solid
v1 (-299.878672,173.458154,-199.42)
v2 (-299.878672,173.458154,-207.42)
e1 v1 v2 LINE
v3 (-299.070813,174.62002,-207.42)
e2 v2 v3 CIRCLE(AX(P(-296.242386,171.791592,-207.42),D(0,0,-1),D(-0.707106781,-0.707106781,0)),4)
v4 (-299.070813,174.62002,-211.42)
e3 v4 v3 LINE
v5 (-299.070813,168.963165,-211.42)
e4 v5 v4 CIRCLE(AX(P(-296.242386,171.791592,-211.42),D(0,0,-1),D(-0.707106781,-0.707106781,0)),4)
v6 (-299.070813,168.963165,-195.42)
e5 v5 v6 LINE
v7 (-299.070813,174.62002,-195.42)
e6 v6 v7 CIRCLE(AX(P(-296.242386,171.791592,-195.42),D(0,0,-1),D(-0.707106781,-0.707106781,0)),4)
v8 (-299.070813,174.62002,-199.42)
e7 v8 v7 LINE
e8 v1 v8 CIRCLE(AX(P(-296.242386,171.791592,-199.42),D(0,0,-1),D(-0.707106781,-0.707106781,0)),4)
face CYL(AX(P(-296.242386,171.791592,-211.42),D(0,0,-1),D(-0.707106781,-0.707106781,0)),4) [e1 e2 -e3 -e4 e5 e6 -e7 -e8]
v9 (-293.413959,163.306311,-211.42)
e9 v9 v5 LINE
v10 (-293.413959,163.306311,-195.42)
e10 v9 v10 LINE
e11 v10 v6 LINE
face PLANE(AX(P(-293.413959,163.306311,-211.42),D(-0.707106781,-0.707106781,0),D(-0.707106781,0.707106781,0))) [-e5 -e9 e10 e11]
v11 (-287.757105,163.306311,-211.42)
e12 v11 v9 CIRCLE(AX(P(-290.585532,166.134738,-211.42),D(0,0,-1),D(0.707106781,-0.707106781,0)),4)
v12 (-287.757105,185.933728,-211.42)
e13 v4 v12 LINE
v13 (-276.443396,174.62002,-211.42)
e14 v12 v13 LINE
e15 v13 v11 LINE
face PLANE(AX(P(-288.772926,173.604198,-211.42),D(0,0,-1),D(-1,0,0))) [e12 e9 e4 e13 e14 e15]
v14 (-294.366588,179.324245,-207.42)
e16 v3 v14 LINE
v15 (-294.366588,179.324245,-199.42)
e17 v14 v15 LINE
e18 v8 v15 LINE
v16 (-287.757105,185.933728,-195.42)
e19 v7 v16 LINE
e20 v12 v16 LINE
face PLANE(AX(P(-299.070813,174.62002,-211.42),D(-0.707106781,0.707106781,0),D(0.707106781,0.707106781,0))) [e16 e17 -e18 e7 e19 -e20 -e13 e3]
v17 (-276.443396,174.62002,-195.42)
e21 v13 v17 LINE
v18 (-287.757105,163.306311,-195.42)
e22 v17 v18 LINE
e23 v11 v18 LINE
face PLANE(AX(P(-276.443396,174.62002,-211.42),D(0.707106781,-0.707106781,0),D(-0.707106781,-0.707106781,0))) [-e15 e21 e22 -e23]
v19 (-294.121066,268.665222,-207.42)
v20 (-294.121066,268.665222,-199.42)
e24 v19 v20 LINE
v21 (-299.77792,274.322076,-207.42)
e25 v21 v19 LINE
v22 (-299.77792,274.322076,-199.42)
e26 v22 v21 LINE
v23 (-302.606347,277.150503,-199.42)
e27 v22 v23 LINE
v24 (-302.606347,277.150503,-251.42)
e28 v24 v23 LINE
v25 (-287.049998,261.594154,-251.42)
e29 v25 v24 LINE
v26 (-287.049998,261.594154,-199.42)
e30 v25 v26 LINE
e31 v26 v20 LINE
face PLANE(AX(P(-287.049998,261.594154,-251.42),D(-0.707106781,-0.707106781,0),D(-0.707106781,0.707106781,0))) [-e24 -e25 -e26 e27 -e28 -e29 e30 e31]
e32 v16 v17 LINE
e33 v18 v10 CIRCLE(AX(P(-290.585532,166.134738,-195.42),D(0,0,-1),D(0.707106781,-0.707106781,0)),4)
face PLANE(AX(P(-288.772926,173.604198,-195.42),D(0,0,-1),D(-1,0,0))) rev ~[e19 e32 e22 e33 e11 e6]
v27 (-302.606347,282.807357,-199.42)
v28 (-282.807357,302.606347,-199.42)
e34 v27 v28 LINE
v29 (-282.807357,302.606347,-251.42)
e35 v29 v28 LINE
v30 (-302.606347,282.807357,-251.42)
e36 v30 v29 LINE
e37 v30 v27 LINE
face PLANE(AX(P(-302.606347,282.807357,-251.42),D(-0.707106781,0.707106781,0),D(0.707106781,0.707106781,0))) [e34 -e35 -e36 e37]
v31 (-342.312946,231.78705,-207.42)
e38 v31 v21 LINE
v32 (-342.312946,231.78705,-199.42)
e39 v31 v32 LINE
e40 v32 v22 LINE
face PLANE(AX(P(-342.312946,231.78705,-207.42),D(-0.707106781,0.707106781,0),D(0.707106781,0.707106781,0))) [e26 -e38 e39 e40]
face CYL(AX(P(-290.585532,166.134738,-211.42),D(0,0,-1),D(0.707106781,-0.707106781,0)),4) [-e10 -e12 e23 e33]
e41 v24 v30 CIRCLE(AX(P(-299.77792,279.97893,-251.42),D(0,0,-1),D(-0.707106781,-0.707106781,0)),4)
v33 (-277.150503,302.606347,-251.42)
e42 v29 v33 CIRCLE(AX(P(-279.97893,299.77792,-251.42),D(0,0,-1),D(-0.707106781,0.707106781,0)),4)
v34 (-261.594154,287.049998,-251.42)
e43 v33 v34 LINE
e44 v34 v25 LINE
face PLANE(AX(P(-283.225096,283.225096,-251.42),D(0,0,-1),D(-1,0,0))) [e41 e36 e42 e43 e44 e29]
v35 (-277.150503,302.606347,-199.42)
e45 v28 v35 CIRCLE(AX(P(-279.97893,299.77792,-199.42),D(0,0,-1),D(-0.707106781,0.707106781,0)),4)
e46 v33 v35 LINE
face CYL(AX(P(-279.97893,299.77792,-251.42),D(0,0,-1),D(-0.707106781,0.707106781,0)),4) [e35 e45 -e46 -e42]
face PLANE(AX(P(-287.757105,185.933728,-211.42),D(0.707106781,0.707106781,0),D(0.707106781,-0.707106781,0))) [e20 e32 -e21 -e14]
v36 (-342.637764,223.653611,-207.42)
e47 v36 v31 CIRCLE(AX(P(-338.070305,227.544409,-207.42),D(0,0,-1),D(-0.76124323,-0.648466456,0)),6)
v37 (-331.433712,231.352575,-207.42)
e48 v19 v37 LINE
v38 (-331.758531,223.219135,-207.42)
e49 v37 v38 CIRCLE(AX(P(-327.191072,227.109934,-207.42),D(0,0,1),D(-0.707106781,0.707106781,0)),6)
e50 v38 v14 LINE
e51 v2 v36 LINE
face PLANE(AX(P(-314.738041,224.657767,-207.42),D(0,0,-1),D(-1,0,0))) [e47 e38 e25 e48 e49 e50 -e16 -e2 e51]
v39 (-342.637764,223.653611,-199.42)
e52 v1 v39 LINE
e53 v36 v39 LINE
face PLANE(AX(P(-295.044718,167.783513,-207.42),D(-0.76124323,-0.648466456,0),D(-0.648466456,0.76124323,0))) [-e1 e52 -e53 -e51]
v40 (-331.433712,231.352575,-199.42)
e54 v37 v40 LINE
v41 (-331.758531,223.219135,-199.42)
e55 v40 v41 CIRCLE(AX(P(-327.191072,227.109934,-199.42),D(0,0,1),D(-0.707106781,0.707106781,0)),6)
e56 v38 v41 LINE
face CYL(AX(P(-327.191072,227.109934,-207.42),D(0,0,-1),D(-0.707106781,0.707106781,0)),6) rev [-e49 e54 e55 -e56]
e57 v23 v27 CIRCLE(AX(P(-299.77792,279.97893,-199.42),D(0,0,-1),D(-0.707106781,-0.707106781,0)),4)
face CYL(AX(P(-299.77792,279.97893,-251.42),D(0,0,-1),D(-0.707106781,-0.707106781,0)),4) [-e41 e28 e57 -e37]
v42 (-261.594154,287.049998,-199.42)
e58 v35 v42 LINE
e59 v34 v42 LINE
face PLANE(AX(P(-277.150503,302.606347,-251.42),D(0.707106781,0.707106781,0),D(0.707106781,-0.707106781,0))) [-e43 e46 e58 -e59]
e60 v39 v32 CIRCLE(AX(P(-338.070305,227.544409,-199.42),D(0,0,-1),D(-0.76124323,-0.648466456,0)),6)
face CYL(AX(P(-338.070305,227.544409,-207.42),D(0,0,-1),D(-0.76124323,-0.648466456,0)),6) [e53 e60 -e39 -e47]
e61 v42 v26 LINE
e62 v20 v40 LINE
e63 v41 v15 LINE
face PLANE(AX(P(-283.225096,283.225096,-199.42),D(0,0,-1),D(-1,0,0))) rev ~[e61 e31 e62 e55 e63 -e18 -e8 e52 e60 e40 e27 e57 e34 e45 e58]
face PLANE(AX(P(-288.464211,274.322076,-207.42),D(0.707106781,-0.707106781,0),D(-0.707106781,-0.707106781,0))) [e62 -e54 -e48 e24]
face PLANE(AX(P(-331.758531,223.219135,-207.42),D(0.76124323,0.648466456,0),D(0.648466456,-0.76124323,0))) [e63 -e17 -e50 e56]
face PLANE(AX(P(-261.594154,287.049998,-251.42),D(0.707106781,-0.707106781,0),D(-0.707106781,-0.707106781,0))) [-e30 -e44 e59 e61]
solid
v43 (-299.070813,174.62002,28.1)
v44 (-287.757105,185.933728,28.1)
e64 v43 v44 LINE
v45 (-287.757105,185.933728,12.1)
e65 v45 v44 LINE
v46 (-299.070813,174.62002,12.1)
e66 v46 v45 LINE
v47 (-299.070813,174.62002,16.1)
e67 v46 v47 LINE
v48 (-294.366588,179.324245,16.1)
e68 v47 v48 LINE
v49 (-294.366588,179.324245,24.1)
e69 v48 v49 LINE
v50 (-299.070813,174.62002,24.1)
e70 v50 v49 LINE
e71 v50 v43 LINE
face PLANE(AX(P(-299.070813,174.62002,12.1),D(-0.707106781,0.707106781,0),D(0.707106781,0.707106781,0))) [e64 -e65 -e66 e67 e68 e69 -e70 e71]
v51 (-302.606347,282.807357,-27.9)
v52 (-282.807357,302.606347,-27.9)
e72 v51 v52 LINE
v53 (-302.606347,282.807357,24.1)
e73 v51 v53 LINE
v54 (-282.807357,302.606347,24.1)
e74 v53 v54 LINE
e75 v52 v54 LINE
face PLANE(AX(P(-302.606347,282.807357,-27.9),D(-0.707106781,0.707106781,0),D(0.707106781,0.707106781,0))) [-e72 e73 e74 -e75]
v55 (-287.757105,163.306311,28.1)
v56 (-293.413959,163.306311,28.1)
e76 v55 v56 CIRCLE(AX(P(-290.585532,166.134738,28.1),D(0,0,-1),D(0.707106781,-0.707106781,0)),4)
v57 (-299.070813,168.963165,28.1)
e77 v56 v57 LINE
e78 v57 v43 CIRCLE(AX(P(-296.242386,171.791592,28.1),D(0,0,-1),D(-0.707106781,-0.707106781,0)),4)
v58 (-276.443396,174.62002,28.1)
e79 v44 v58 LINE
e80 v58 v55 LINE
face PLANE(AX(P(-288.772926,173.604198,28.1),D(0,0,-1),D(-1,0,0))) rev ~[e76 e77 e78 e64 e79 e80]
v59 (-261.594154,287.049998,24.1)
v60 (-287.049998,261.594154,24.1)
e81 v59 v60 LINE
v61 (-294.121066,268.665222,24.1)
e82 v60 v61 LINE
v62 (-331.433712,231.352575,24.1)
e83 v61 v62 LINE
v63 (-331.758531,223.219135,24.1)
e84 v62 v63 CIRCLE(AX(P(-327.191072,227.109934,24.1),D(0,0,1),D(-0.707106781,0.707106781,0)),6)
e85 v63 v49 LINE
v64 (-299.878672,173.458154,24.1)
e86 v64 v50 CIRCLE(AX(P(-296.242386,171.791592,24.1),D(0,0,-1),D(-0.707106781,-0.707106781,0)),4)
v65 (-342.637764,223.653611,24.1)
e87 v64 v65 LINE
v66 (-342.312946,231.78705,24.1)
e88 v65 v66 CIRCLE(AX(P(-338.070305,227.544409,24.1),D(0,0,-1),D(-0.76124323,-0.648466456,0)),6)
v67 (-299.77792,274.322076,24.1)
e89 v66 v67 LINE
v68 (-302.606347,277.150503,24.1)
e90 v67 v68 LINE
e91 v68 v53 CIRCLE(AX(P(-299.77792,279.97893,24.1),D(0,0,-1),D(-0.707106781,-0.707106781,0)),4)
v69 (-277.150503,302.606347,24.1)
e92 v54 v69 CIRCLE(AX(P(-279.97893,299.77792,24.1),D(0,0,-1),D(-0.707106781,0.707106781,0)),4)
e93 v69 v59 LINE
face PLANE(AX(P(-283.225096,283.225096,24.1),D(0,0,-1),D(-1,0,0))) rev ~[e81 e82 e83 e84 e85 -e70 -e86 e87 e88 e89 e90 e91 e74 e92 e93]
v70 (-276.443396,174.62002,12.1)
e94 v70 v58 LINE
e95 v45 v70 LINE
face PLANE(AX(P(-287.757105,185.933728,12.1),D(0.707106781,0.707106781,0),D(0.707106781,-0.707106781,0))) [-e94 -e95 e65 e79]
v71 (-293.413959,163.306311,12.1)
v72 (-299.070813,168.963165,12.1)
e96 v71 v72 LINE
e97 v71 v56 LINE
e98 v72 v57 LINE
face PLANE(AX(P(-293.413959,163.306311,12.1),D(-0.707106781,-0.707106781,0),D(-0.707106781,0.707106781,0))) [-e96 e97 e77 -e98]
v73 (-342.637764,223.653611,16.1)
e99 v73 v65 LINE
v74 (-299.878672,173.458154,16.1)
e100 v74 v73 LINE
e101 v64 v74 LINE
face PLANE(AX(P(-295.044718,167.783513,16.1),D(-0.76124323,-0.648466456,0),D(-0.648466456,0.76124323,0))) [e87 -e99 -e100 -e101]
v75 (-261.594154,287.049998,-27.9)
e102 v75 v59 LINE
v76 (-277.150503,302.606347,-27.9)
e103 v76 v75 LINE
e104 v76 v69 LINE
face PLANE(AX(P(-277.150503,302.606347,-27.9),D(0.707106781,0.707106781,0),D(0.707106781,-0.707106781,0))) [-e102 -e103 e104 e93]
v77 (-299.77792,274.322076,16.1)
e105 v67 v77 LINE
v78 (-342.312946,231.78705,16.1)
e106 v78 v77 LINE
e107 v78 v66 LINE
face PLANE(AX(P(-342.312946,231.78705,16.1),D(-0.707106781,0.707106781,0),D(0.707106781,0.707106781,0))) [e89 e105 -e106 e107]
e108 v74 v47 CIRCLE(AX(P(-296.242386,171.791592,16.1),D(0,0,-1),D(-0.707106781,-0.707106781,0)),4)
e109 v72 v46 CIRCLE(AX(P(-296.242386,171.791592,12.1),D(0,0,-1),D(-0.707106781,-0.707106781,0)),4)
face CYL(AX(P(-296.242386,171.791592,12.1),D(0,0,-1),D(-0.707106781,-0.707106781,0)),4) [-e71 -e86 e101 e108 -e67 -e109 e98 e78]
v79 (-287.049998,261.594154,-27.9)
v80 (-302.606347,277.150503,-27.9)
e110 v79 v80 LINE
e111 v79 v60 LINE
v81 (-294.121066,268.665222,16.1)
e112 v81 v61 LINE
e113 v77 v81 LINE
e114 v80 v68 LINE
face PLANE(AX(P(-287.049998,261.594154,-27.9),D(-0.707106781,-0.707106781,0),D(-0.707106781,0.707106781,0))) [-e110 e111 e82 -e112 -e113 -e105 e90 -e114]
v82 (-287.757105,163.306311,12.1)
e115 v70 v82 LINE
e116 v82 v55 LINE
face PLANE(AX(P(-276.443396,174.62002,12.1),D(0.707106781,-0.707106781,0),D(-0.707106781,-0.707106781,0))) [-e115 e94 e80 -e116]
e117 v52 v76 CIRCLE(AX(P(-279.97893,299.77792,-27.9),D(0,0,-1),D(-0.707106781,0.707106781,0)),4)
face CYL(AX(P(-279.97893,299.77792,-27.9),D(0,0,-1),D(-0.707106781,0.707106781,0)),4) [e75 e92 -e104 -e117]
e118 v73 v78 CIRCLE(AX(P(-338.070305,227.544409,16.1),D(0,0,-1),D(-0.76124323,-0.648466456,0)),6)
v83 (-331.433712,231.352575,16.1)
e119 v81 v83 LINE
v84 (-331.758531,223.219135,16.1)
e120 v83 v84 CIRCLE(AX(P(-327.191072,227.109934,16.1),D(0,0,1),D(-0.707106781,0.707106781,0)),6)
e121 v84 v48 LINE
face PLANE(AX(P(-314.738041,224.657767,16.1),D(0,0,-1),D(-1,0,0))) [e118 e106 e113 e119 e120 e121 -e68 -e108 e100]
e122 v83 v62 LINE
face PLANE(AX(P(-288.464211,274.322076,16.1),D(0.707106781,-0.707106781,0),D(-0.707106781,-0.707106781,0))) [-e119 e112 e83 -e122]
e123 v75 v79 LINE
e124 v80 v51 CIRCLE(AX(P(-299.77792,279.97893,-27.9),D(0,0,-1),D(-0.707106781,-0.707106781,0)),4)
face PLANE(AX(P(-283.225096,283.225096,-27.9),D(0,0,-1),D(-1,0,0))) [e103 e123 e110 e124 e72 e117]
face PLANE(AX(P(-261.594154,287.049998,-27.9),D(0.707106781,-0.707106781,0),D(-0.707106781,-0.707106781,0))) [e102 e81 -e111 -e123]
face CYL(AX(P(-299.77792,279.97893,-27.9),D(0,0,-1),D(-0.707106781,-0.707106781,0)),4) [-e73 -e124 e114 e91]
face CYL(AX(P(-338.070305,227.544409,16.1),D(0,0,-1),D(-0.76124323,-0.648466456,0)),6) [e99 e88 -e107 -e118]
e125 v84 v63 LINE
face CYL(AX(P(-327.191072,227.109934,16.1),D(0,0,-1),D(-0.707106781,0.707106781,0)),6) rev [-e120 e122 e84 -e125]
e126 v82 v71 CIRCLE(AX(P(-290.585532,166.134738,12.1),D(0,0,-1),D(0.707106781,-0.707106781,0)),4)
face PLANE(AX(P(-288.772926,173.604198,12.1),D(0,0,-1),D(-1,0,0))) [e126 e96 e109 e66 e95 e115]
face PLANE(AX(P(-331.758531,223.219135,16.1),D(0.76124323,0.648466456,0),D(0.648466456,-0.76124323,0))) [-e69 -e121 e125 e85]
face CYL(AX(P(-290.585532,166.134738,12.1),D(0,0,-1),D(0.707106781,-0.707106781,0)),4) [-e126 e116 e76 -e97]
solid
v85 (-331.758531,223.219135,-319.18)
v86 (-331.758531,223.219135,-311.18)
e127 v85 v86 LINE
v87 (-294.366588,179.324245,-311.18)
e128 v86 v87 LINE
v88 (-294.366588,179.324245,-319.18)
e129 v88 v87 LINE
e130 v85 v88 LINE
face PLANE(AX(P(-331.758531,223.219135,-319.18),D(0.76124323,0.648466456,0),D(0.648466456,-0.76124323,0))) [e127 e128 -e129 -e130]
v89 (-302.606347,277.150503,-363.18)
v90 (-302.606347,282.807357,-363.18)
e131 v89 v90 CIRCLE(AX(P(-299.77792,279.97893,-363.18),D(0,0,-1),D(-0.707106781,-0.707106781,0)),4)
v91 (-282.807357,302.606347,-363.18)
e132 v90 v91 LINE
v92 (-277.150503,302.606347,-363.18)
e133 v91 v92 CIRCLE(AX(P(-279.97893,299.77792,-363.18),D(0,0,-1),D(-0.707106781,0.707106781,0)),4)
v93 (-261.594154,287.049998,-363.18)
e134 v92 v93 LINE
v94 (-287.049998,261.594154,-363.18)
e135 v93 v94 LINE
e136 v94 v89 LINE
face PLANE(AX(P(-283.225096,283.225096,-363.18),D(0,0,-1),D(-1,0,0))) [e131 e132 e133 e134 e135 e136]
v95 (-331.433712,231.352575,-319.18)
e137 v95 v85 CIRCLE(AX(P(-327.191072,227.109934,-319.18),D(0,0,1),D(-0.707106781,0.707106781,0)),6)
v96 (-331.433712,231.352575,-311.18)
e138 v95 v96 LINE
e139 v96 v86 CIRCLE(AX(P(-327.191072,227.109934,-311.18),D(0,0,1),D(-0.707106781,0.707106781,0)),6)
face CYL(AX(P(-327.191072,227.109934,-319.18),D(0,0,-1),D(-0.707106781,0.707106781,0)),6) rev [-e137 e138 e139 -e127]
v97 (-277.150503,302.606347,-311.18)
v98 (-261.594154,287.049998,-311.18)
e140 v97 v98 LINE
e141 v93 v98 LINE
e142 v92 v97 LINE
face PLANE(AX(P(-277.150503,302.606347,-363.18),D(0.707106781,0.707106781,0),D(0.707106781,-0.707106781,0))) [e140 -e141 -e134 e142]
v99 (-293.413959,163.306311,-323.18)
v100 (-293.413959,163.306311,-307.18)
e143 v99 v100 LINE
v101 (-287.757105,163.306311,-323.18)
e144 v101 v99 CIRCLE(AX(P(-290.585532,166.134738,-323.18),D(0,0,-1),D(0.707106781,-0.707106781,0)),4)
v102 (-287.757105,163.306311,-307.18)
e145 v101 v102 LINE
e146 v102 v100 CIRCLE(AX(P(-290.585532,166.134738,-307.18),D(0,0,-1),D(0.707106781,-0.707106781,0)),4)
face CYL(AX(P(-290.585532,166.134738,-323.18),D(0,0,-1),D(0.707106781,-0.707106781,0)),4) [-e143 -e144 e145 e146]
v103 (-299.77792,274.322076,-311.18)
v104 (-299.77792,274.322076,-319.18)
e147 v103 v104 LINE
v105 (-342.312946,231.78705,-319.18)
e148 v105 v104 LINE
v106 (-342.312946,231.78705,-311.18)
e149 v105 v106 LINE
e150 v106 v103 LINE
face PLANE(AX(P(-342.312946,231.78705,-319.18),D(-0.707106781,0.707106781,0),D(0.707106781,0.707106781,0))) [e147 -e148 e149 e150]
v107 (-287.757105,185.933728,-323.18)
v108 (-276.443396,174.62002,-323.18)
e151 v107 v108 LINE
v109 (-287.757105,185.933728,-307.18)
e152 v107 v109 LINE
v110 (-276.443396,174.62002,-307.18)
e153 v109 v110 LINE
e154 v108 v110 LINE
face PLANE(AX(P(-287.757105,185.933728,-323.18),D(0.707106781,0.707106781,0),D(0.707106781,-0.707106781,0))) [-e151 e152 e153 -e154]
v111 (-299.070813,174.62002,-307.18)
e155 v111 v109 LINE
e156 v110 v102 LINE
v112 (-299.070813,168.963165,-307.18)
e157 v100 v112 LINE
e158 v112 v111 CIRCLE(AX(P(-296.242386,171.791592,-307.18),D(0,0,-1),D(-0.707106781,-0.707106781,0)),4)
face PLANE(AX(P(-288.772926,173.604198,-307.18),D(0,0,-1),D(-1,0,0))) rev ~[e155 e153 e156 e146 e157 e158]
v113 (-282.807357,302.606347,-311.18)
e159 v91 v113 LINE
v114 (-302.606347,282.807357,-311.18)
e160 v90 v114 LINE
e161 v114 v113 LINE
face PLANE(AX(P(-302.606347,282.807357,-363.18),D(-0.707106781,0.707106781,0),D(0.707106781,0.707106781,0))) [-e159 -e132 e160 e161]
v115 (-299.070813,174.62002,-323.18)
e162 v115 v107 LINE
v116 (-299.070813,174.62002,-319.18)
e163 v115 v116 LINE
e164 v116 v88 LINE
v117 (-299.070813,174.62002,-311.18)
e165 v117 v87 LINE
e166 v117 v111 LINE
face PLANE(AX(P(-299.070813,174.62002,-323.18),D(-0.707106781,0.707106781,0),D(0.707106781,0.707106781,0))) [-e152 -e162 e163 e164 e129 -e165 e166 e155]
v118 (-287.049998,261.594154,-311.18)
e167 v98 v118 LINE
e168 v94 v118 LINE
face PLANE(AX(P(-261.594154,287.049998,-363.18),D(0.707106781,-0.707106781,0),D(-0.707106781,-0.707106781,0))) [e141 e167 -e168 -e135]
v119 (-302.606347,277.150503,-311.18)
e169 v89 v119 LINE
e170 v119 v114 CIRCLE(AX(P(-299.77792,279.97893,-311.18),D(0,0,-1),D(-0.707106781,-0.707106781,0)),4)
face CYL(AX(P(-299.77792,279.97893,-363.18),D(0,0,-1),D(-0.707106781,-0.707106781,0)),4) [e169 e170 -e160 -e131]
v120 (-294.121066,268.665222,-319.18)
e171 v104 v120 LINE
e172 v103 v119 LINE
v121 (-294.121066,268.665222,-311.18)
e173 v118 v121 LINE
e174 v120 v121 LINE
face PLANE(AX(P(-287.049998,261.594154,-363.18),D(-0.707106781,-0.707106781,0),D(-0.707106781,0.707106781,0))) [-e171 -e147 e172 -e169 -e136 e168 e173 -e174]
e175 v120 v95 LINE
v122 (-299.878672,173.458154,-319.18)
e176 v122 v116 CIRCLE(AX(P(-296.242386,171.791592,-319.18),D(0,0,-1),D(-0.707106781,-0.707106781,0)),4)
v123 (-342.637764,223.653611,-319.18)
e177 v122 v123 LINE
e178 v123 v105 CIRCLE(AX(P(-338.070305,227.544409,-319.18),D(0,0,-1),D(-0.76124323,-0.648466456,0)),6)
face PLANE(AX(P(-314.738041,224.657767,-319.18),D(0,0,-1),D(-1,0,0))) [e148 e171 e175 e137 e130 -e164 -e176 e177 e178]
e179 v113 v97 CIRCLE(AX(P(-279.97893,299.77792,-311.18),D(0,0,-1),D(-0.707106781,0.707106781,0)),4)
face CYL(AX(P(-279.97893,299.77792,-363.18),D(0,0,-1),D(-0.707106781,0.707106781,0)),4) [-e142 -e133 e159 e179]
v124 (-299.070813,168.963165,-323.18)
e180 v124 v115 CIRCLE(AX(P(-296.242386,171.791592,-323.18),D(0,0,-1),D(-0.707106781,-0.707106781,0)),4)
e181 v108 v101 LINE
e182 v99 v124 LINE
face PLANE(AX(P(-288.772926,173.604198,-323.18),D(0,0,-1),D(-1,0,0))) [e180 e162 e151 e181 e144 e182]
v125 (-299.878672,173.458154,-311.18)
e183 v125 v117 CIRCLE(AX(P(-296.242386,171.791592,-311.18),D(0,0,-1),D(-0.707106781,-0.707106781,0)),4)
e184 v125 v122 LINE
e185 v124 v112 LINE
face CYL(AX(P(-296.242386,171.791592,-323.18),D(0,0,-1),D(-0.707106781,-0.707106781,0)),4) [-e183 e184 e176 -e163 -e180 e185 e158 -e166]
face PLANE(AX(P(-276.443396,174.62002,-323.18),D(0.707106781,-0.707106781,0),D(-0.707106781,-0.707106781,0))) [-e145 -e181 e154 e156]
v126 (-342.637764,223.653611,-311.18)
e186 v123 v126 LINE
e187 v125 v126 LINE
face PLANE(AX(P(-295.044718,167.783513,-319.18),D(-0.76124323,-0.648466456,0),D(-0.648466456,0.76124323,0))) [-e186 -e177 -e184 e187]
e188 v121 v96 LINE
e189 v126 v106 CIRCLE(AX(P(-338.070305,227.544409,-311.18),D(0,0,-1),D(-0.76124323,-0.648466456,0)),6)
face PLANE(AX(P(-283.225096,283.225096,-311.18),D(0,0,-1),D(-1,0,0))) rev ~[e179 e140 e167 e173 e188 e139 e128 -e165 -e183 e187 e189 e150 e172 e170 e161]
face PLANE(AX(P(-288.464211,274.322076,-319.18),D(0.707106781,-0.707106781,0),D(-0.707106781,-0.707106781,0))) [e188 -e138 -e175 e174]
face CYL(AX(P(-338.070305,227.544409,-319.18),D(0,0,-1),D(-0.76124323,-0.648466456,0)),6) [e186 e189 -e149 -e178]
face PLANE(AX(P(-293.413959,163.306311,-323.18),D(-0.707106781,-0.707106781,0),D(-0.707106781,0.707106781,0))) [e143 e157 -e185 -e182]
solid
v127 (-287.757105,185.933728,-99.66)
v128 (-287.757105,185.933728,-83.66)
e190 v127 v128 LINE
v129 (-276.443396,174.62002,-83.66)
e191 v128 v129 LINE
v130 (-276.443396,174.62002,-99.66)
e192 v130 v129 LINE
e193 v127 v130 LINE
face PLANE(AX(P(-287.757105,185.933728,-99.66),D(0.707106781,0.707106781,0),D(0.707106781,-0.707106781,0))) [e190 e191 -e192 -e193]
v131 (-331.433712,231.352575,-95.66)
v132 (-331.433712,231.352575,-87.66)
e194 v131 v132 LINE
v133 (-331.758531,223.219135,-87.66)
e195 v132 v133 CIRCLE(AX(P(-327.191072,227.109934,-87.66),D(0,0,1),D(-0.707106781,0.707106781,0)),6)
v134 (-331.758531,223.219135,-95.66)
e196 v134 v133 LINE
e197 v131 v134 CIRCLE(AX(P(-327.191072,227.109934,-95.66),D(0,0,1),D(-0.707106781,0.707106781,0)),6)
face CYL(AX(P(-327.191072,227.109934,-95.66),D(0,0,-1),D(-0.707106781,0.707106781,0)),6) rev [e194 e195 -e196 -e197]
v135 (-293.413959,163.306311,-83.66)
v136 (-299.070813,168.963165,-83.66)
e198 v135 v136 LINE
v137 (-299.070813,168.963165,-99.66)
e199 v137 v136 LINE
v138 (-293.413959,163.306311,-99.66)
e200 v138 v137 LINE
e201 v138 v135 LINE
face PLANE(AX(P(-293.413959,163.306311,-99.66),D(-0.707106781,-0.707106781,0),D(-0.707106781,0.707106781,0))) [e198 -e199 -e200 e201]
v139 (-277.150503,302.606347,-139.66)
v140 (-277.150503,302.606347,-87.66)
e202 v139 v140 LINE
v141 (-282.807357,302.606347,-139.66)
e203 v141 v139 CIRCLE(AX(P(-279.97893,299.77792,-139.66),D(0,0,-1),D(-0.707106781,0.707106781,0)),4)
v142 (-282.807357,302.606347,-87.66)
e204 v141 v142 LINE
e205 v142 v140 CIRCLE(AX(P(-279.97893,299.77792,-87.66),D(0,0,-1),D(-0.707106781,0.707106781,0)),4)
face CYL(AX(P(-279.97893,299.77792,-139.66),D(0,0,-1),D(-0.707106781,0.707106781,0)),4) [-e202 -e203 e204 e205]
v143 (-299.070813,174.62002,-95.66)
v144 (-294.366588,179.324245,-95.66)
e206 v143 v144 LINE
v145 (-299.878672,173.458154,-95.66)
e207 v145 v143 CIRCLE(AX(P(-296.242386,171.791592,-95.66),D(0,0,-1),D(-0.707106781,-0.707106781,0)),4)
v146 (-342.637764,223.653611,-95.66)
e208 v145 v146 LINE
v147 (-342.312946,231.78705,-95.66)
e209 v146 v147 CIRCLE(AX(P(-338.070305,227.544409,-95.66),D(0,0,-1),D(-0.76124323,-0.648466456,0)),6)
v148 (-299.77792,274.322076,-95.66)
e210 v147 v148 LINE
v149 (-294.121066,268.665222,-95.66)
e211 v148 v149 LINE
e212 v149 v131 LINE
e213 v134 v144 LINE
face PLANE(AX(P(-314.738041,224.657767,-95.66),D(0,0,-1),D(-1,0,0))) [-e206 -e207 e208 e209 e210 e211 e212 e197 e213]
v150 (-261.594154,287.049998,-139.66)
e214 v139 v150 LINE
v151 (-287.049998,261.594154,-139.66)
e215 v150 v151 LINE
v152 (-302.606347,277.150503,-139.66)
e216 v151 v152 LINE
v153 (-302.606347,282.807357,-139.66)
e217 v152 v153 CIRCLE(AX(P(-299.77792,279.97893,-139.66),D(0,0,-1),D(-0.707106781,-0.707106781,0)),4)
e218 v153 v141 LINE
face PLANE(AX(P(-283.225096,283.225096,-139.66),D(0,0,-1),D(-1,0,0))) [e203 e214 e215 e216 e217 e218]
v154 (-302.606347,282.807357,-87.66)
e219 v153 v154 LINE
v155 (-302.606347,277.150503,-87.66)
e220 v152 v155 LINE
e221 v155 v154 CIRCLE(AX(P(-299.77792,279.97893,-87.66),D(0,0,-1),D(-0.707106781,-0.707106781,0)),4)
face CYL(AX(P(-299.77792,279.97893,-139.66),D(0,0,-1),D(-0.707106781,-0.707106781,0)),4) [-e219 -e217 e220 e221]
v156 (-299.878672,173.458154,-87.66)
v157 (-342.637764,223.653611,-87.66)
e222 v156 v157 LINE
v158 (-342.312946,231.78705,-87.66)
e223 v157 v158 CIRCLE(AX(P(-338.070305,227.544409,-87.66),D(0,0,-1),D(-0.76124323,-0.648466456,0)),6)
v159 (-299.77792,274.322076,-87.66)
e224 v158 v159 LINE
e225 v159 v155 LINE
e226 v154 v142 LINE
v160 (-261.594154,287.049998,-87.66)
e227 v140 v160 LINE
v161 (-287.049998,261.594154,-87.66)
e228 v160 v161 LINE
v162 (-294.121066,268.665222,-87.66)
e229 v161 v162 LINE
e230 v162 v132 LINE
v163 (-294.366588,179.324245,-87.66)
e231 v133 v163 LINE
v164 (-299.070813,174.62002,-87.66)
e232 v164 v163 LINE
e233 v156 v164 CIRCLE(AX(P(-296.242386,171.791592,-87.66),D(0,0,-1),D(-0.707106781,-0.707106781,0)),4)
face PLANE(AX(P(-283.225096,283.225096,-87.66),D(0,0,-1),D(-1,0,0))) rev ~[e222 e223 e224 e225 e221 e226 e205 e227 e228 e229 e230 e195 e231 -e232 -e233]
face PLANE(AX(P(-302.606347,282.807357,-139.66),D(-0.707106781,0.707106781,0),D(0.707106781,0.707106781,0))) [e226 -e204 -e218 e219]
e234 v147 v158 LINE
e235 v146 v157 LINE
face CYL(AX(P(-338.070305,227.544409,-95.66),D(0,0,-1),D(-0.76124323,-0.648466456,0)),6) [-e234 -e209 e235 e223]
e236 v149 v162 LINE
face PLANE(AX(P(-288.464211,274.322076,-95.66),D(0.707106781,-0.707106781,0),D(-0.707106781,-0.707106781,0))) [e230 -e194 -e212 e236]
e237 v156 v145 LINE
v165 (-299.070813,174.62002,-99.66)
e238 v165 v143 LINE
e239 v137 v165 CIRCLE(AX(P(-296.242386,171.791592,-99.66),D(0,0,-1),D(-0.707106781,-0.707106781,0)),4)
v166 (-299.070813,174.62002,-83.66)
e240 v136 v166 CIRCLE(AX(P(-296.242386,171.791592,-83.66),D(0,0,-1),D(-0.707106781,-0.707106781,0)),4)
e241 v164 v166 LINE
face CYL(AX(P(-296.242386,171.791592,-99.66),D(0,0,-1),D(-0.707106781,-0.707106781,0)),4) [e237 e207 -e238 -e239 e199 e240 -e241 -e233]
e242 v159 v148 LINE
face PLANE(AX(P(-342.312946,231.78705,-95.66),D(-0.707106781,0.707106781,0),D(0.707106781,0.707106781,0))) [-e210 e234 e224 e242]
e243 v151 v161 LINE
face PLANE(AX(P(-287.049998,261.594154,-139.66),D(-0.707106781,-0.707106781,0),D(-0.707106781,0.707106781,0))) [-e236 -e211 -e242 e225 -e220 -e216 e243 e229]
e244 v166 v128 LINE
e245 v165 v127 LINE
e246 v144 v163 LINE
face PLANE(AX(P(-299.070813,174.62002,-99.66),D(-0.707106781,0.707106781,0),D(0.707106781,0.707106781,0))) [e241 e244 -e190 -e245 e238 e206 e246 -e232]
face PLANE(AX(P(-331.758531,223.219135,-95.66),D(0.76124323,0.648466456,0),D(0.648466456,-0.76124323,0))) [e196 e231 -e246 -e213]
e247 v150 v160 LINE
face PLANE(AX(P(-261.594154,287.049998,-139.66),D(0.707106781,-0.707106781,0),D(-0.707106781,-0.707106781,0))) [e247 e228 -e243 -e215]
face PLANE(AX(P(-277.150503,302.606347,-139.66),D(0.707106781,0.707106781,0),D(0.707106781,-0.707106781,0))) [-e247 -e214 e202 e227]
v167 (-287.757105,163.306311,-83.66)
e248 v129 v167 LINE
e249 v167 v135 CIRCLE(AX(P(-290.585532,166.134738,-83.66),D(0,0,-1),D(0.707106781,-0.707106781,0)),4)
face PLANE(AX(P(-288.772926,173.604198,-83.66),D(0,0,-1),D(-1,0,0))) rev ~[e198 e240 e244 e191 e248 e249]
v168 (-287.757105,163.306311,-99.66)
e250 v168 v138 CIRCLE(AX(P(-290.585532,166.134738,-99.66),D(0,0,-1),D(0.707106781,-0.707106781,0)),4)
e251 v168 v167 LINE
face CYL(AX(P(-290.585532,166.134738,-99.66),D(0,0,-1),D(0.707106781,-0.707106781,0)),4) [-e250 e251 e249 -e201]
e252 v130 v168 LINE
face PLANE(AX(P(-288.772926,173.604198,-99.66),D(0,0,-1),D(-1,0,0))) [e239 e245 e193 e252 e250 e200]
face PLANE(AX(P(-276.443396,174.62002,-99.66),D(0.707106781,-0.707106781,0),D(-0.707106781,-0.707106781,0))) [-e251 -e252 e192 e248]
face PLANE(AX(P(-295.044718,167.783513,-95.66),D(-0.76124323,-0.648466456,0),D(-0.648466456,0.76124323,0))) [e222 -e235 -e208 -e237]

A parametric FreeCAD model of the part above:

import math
import FreeCAD as App
import Part
import Sketcher

V = App.Vector
Q = App.Units.Quantity

doc = App.newDocument("Part")
body = doc.addObject("PartDesign::Body", "Body")

# Sketch on XY plane
sketch1 = body.newObject("Sketcher::SketchObject", "Sketch")
sketch1.AttachmentSupport = (doc.getObject("XY_Plane"), [""])
sketch1.MapMode = "FlatFace"
sketch1.AttachmentOffset = App.Placement(V(0, 0, -27.9), App.Rotation())
sketch1.addGeometry([
    Part.LineSegment(V(-287.049998, 261.594154, 0), V(-261.594154, 287.049998, 0)),  # 0
    Part.LineSegment(V(-261.594154, 287.049998, 0), V(-277.150503, 302.606347, 0)),  # 1
    Part.ArcOfCircle(Part.Circle(V(-279.97893, 299.77792, 0), V(0, 0, 1), 4), math.radians(45), math.radians(135)),  # 2
    Part.LineSegment(V(-282.807357, 302.606347, 0), V(-302.606347, 282.807357, 0)),  # 3
    Part.ArcOfCircle(Part.Circle(V(-299.77792, 279.97893, 0), V(0, 0, 1), 4), math.radians(135), math.radians(225)),  # 4
    Part.LineSegment(V(-302.606347, 277.150503, 0), V(-287.049998, 261.594154, 0)),  # 5
], False)
sketch1.addConstraint([
    Sketcher.Constraint("Coincident", 0, 2, 1, 1),
    Sketcher.Constraint("Tangent", 1, 2, 2, 1),
    Sketcher.Constraint("Tangent", 2, 2, 3, 1),
    Sketcher.Constraint("Tangent", 3, 2, 4, 1),
    Sketcher.Constraint("Tangent", 4, 2, 5, 1),
    Sketcher.Constraint("Coincident", 5, 2, 0, 1),
    Sketcher.Constraint("Equal", 2, 4),
    Sketcher.Constraint("Perpendicular", 0, 1),
    Sketcher.Constraint("Perpendicular", 1, 3),
    Sketcher.Constraint("Perpendicular", 3, 5),
    Sketcher.Constraint("Horizontal", 1, 2, 2, 2),
    Sketcher.Constraint("Radius", 2, Q("4 mm")),
    Sketcher.Constraint("Distance", 0, Q("36 mm")),
    Sketcher.Constraint("Distance", 1, Q("22 mm")),
    Sketcher.Constraint("DistanceX", 2, 3, -1, 1, Q("279.97893 mm")),
    Sketcher.Constraint("DistanceY", -1, 1, 2, 3, Q("299.77792 mm")),
])
pad1 = body.newObject("PartDesign::Pad", "Pad")
pad1.Profile = sketch1
pad1.Length = 52

# Sketch on XY plane
sketch2 = body.newObject("Sketcher::SketchObject", "Sketch001")
sketch2.AttachmentSupport = (doc.getObject("XY_Plane"), [""])
sketch2.MapMode = "FlatFace"
sketch2.AttachmentOffset = App.Placement(V(0, 0, 16.1), App.Rotation())
sketch2.addGeometry([
    Part.LineSegment(V(-331.433712, 231.352575, 0), V(-288.464211, 274.322076, 0)),  # 0
    Part.LineSegment(V(-288.464211, 274.322076, 0), V(-294.121066, 279.97893, 0)),  # 1
    Part.LineSegment(V(-294.121066, 279.97893, 0), V(-342.312946, 231.78705, 0)),  # 2
    Part.ArcOfCircle(Part.Circle(V(-338.070305, 227.544409, 0), V(0, 0, 1), 6), math.radians(135), math.radians(220.426079)),  # 3
    Part.LineSegment(V(-342.637764, 223.653611, 0), V(-295.044718, 167.783513, 0)),  # 4
    Part.LineSegment(V(-295.044718, 167.783513, 0), V(-288.954772, 172.971245, 0)),  # 5
    Part.LineSegment(V(-288.954772, 172.971245, 0), V(-331.758531, 223.219135, 0)),  # 6
    Part.ArcOfCircle(Part.Circle(V(-327.191072, 227.109934, 0), V(0, 0, 1), 6), math.radians(135), math.radians(220.426079)),  # 7
], False)
sketch2.addConstraint([
    Sketcher.Constraint("Coincident", 0, 2, 1, 1),
    Sketcher.Constraint("Coincident", 1, 2, 2, 1),
    Sketcher.Constraint("Tangent", 2, 2, 3, 1),
    Sketcher.Constraint("Tangent", 3, 2, 4, 1),
    Sketcher.Constraint("Coincident", 4, 2, 5, 1),
    Sketcher.Constraint("Coincident", 5, 2, 6, 1),
    Sketcher.Constraint("Tangent", 6, 2, 7, 2),
    Sketcher.Constraint("Tangent", 7, 1, 0, 1),
    Sketcher.Constraint("Equal", 3, 7),
    Sketcher.Constraint("Perpendicular", 0, 1),
    Sketcher.Constraint("Perpendicular", 1, 2),
    Sketcher.Constraint("Perpendicular", 4, 5),
    Sketcher.Constraint("Perpendicular", 5, 6),
    Sketcher.Constraint("Equal", 1, 5),
    Sketcher.Constraint("Radius", 3, Q("6 mm")),
    Sketcher.Constraint("Angle", 0, Q("45 deg")),
    Sketcher.Constraint("Distance", 1, Q("8 mm")),
    Sketcher.Constraint("DistanceY", 3, 2, 3, 3, Q("3.890799 mm")),
    Sketcher.Constraint("DistanceX", 3, 2, 1, 2, Q("48.516699 mm")),
    Sketcher.Constraint("DistanceX", 7, 3, 5, 2, Q("38.236299 mm")),
    Sketcher.Constraint("DistanceY", -1, 1, 3, 3, Q("227.544409 mm")),
    Sketcher.Constraint("DistanceX", 7, 3, -1, 1, Q("327.191072 mm")),
])
pad2 = body.newObject("PartDesign::Pad", "Pad001")
pad2.Profile = sketch2
pad2.Length = 8

# Sketch on XY plane
sketch3 = body.newObject("Sketcher::SketchObject", "Sketch002")
sketch3.AttachmentSupport = (doc.getObject("XY_Plane"), [""])
sketch3.MapMode = "FlatFace"
sketch3.AttachmentOffset = App.Placement(V(0, 0, 12.1), App.Rotation())
sketch3.addGeometry([
    Part.LineSegment(V(-287.757105, 163.306311, 0), V(-276.443396, 174.62002, 0)),  # 0
    Part.LineSegment(V(-276.443396, 174.62002, 0), V(-287.757105, 185.933728, 0)),  # 1
    Part.LineSegment(V(-287.757105, 185.933728, 0), V(-299.070813, 174.62002, 0)),  # 2
    Part.ArcOfCircle(Part.Circle(V(-296.242386, 171.791592, 0), V(0, 0, 1), 4), math.radians(135), math.radians(225)),  # 3
    Part.LineSegment(V(-299.070813, 168.963165, 0), V(-293.413959, 163.306311, 0)),  # 4
    Part.ArcOfCircle(Part.Circle(V(-290.585532, 166.134738, 0), V(0, 0, 1), 4), math.radians(-135), math.radians(-45)),  # 5
], False)
sketch3.addConstraint([
    Sketcher.Constraint("Coincident", 0, 2, 1, 1),
    Sketcher.Constraint("Coincident", 1, 2, 2, 1),
    Sketcher.Constraint("Tangent", 2, 2, 3, 1),
    Sketcher.Constraint("Tangent", 3, 2, 4, 1),
    Sketcher.Constraint("Tangent", 4, 2, 5, 1),
    Sketcher.Constraint("Tangent", 5, 2, 0, 1),
    Sketcher.Constraint("Equal", 3, 5),
    Sketcher.Constraint("Perpendicular", 0, 1),
    Sketcher.Constraint("Perpendicular", 1, 2),
    Sketcher.Constraint("Perpendicular", 2, 4),
    Sketcher.Constraint("Horizontal", 0, 2, 2, 2),
    Sketcher.Constraint("Horizontal", 4, 2, 5, 2),
    Sketcher.Constraint("Radius", 3, Q("4 mm")),
    Sketcher.Constraint("Distance", 0, Q("16 mm")),
    Sketcher.Constraint("DistanceX", 5, 3, -1, 1, Q("290.585532 mm")),
    Sketcher.Constraint("DistanceY", -1, 1, 5, 3, Q("166.134738 mm")),
])
pad3 = body.newObject("PartDesign::Pad", "Pad002")
pad3.Profile = sketch3
pad3.Length = 16
body2 = doc.addObject("PartDesign::Body", "Body001")

# Sketch on XY plane
sketch4 = body2.newObject("Sketcher::SketchObject", "Sketch003")
sketch4.AttachmentSupport = (doc.getObject("XY_Plane001"), [""])
sketch4.MapMode = "FlatFace"
sketch4.AttachmentOffset = App.Placement(V(0, 0, -139.66), App.Rotation())
sketch4.addGeometry([
    Part.LineSegment(V(-287.049998, 261.594154, 0), V(-261.594154, 287.049998, 0)),  # 0
    Part.LineSegment(V(-261.594154, 287.049998, 0), V(-277.150503, 302.606347, 0)),  # 1
    Part.ArcOfCircle(Part.Circle(V(-279.97893, 299.77792, 0), V(0, 0, 1), 4), math.radians(45), math.radians(135)),  # 2
    Part.LineSegment(V(-282.807357, 302.606347, 0), V(-302.606347, 282.807357, 0)),  # 3
    Part.ArcOfCircle(Part.Circle(V(-299.77792, 279.97893, 0), V(0, 0, 1), 4), math.radians(135), math.radians(225)),  # 4
    Part.LineSegment(V(-302.606347, 277.150503, 0), V(-287.049998, 261.594154, 0)),  # 5
], False)
sketch4.addConstraint([
    Sketcher.Constraint("Coincident", 0, 2, 1, 1),
    Sketcher.Constraint("Tangent", 1, 2, 2, 1),
    Sketcher.Constraint("Tangent", 2, 2, 3, 1),
    Sketcher.Constraint("Tangent", 3, 2, 4, 1),
    Sketcher.Constraint("Tangent", 4, 2, 5, 1),
    Sketcher.Constraint("Coincident", 5, 2, 0, 1),
    Sketcher.Constraint("Equal", 2, 4),
    Sketcher.Constraint("Perpendicular", 0, 1),
    Sketcher.Constraint("Perpendicular", 1, 3),
    Sketcher.Constraint("Perpendicular", 3, 5),
    Sketcher.Constraint("Horizontal", 1, 2, 2, 2),
    Sketcher.Constraint("Radius", 2, Q("4 mm")),
    Sketcher.Constraint("Distance", 0, Q("36 mm")),
    Sketcher.Constraint("Distance", 1, Q("22 mm")),
    Sketcher.Constraint("DistanceX", 2, 3, -1, 1, Q("279.97893 mm")),
    Sketcher.Constraint("DistanceY", -1, 1, 2, 3, Q("299.77792 mm")),
])
pad4 = body2.newObject("PartDesign::Pad", "Pad003")
pad4.Profile = sketch4
pad4.Length = 52

# Sketch on XY plane
sketch5 = body2.newObject("Sketcher::SketchObject", "Sketch004")
sketch5.AttachmentSupport = (doc.getObject("XY_Plane001"), [""])
sketch5.MapMode = "FlatFace"
sketch5.AttachmentOffset = App.Placement(V(0, 0, -95.66), App.Rotation())
sketch5.addGeometry([
    Part.LineSegment(V(-331.433712, 231.352575, 0), V(-288.464211, 274.322076, 0)),  # 0
    Part.LineSegment(V(-288.464211, 274.322076, 0), V(-294.121066, 279.97893, 0)),  # 1
    Part.LineSegment(V(-294.121066, 279.97893, 0), V(-342.312946, 231.78705, 0)),  # 2
    Part.ArcOfCircle(Part.Circle(V(-338.070305, 227.544409, 0), V(0, 0, 1), 6), math.radians(135), math.radians(220.426079)),  # 3
    Part.LineSegment(V(-342.637764, 223.653611, 0), V(-295.044718, 167.783513, 0)),  # 4
    Part.LineSegment(V(-295.044718, 167.783513, 0), V(-288.954772, 172.971245, 0)),  # 5
    Part.LineSegment(V(-288.954772, 172.971245, 0), V(-331.758531, 223.219135, 0)),  # 6
    Part.ArcOfCircle(Part.Circle(V(-327.191072, 227.109934, 0), V(0, 0, 1), 6), math.radians(135), math.radians(220.426079)),  # 7
], False)
sketch5.addConstraint([
    Sketcher.Constraint("Coincident", 0, 2, 1, 1),
    Sketcher.Constraint("Coincident", 1, 2, 2, 1),
    Sketcher.Constraint("Tangent", 2, 2, 3, 1),
    Sketcher.Constraint("Tangent", 3, 2, 4, 1),
    Sketcher.Constraint("Coincident", 4, 2, 5, 1),
    Sketcher.Constraint("Coincident", 5, 2, 6, 1),
    Sketcher.Constraint("Tangent", 6, 2, 7, 2),
    Sketcher.Constraint("Tangent", 7, 1, 0, 1),
    Sketcher.Constraint("Equal", 3, 7),
    Sketcher.Constraint("Perpendicular", 0, 1),
    Sketcher.Constraint("Perpendicular", 1, 2),
    Sketcher.Constraint("Perpendicular", 4, 5),
    Sketcher.Constraint("Perpendicular", 5, 6),
    Sketcher.Constraint("Equal", 1, 5),
    Sketcher.Constraint("Radius", 3, Q("6 mm")),
    Sketcher.Constraint("Angle", 0, Q("45 deg")),
    Sketcher.Constraint("Distance", 1, Q("8 mm")),
    Sketcher.Constraint("DistanceY", 3, 2, 3, 3, Q("3.890799 mm")),
    Sketcher.Constraint("DistanceX", 3, 2, 1, 2, Q("48.516699 mm")),
    Sketcher.Constraint("DistanceX", 7, 3, 5, 2, Q("38.236299 mm")),
    Sketcher.Constraint("DistanceY", -1, 1, 3, 3, Q("227.544409 mm")),
    Sketcher.Constraint("DistanceX", 7, 3, -1, 1, Q("327.191072 mm")),
])
pad5 = body2.newObject("PartDesign::Pad", "Pad004")
pad5.Profile = sketch5
pad5.Length = 8

# Sketch on XY plane
sketch6 = body2.newObject("Sketcher::SketchObject", "Sketch005")
sketch6.AttachmentSupport = (doc.getObject("XY_Plane001"), [""])
sketch6.MapMode = "FlatFace"
sketch6.AttachmentOffset = App.Placement(V(0, 0, -99.66), App.Rotation())
sketch6.addGeometry([
    Part.LineSegment(V(-287.757105, 163.306311, 0), V(-276.443396, 174.62002, 0)),  # 0
    Part.LineSegment(V(-276.443396, 174.62002, 0), V(-287.757105, 185.933728, 0)),  # 1
    Part.LineSegment(V(-287.757105, 185.933728, 0), V(-299.070813, 174.62002, 0)),  # 2
    Part.ArcOfCircle(Part.Circle(V(-296.242386, 171.791592, 0), V(0, 0, 1), 4), math.radians(135), math.radians(225)),  # 3
    Part.LineSegment(V(-299.070813, 168.963165, 0), V(-293.413959, 163.306311, 0)),  # 4
    Part.ArcOfCircle(Part.Circle(V(-290.585532, 166.134738, 0), V(0, 0, 1), 4), math.radians(-135), math.radians(-45)),  # 5
], False)
sketch6.addConstraint([
    Sketcher.Constraint("Coincident", 0, 2, 1, 1),
    Sketcher.Constraint("Coincident", 1, 2, 2, 1),
    Sketcher.Constraint("Tangent", 2, 2, 3, 1),
    Sketcher.Constraint("Tangent", 3, 2, 4, 1),
    Sketcher.Constraint("Tangent", 4, 2, 5, 1),
    Sketcher.Constraint("Tangent", 5, 2, 0, 1),
    Sketcher.Constraint("Equal", 3, 5),
    Sketcher.Constraint("Perpendicular", 0, 1),
    Sketcher.Constraint("Perpendicular", 1, 2),
    Sketcher.Constraint("Perpendicular", 2, 4),
    Sketcher.Constraint("Horizontal", 0, 2, 2, 2),
    Sketcher.Constraint("Horizontal", 4, 2, 5, 2),
    Sketcher.Constraint("Radius", 3, Q("4 mm")),
    Sketcher.Constraint("Distance", 0, Q("16 mm")),
    Sketcher.Constraint("DistanceX", 5, 3, -1, 1, Q("290.585532 mm")),
    Sketcher.Constraint("DistanceY", -1, 1, 5, 3, Q("166.134738 mm")),
])
pad6 = body2.newObject("PartDesign::Pad", "Pad005")
pad6.Profile = sketch6
pad6.Length = 16
body3 = doc.addObject("PartDesign::Body", "Body002")

# Sketch on XY plane
sketch7 = body3.newObject("Sketcher::SketchObject", "Sketch006")
sketch7.AttachmentSupport = (doc.getObject("XY_Plane002"), [""])
sketch7.MapMode = "FlatFace"
sketch7.AttachmentOffset = App.Placement(V(0, 0, -251.42), App.Rotation())
sketch7.addGeometry([
    Part.LineSegment(V(-287.049998, 261.594154, 0), V(-261.594154, 287.049998, 0)),  # 0
    Part.LineSegment(V(-261.594154, 287.049998, 0), V(-277.150503, 302.606347, 0)),  # 1
    Part.ArcOfCircle(Part.Circle(V(-279.97893, 299.77792, 0), V(0, 0, 1), 4), math.radians(45), math.radians(135)),  # 2
    Part.LineSegment(V(-282.807357, 302.606347, 0), V(-302.606347, 282.807357, 0)),  # 3
    Part.ArcOfCircle(Part.Circle(V(-299.77792, 279.97893, 0), V(0, 0, 1), 4), math.radians(135), math.radians(225)),  # 4
    Part.LineSegment(V(-302.606347, 277.150503, 0), V(-287.049998, 261.594154, 0)),  # 5
], False)
sketch7.addConstraint([
    Sketcher.Constraint("Coincident", 0, 2, 1, 1),
    Sketcher.Constraint("Tangent", 1, 2, 2, 1),
    Sketcher.Constraint("Tangent", 2, 2, 3, 1),
    Sketcher.Constraint("Tangent", 3, 2, 4, 1),
    Sketcher.Constraint("Tangent", 4, 2, 5, 1),
    Sketcher.Constraint("Coincident", 5, 2, 0, 1),
    Sketcher.Constraint("Equal", 2, 4),
    Sketcher.Constraint("Perpendicular", 0, 1),
    Sketcher.Constraint("Perpendicular", 1, 3),
    Sketcher.Constraint("Perpendicular", 3, 5),
    Sketcher.Constraint("Horizontal", 1, 2, 2, 2),
    Sketcher.Constraint("Radius", 2, Q("4 mm")),
    Sketcher.Constraint("Distance", 0, Q("36 mm")),
    Sketcher.Constraint("Distance", 1, Q("22 mm")),
    Sketcher.Constraint("DistanceX", 2, 3, -1, 1, Q("279.97893 mm")),
    Sketcher.Constraint("DistanceY", -1, 1, 2, 3, Q("299.77792 mm")),
])
pad7 = body3.newObject("PartDesign::Pad", "Pad006")
pad7.Profile = sketch7
pad7.Length = 52

# Sketch on XY plane
sketch8 = body3.newObject("Sketcher::SketchObject", "Sketch007")
sketch8.AttachmentSupport = (doc.getObject("XY_Plane002"), [""])
sketch8.MapMode = "FlatFace"
sketch8.AttachmentOffset = App.Placement(V(0, 0, -207.42), App.Rotation())
sketch8.addGeometry([
    Part.LineSegment(V(-331.433712, 231.352575, 0), V(-288.464211, 274.322076, 0)),  # 0
    Part.LineSegment(V(-288.464211, 274.322076, 0), V(-294.121066, 279.97893, 0)),  # 1
    Part.LineSegment(V(-294.121066, 279.97893, 0), V(-342.312946, 231.78705, 0)),  # 2
    Part.ArcOfCircle(Part.Circle(V(-338.070305, 227.544409, 0), V(0, 0, 1), 6), math.radians(135), math.radians(220.426079)),  # 3
    Part.LineSegment(V(-342.637764, 223.653611, 0), V(-295.044718, 167.783513, 0)),  # 4
    Part.LineSegment(V(-295.044718, 167.783513, 0), V(-288.954772, 172.971245, 0)),  # 5
    Part.LineSegment(V(-288.954772, 172.971245, 0), V(-331.758531, 223.219135, 0)),  # 6
    Part.ArcOfCircle(Part.Circle(V(-327.191072, 227.109934, 0), V(0, 0, 1), 6), math.radians(135), math.radians(220.426079)),  # 7
], False)
sketch8.addConstraint([
    Sketcher.Constraint("Coincident", 0, 2, 1, 1),
    Sketcher.Constraint("Coincident", 1, 2, 2, 1),
    Sketcher.Constraint("Tangent", 2, 2, 3, 1),
    Sketcher.Constraint("Tangent", 3, 2, 4, 1),
    Sketcher.Constraint("Coincident", 4, 2, 5, 1),
    Sketcher.Constraint("Coincident", 5, 2, 6, 1),
    Sketcher.Constraint("Tangent", 6, 2, 7, 2),
    Sketcher.Constraint("Tangent", 7, 1, 0, 1),
    Sketcher.Constraint("Equal", 3, 7),
    Sketcher.Constraint("Perpendicular", 0, 1),
    Sketcher.Constraint("Perpendicular", 1, 2),
    Sketcher.Constraint("Perpendicular", 4, 5),
    Sketcher.Constraint("Perpendicular", 5, 6),
    Sketcher.Constraint("Equal", 1, 5),
    Sketcher.Constraint("Radius", 3, Q("6 mm")),
    Sketcher.Constraint("Angle", 0, Q("45 deg")),
    Sketcher.Constraint("Distance", 1, Q("8 mm")),
    Sketcher.Constraint("DistanceY", 3, 2, 3, 3, Q("3.890799 mm")),
    Sketcher.Constraint("DistanceX", 3, 2, 1, 2, Q("48.516699 mm")),
    Sketcher.Constraint("DistanceX", 7, 3, 5, 2, Q("38.236299 mm")),
    Sketcher.Constraint("DistanceY", -1, 1, 3, 3, Q("227.544409 mm")),
    Sketcher.Constraint("DistanceX", 7, 3, -1, 1, Q("327.191072 mm")),
])
pad8 = body3.newObject("PartDesign::Pad", "Pad007")
pad8.Profile = sketch8
pad8.Length = 8

# Sketch on XY plane
sketch9 = body3.newObject("Sketcher::SketchObject", "Sketch008")
sketch9.AttachmentSupport = (doc.getObject("XY_Plane002"), [""])
sketch9.MapMode = "FlatFace"
sketch9.AttachmentOffset = App.Placement(V(0, 0, -211.42), App.Rotation())
sketch9.addGeometry([
    Part.LineSegment(V(-287.757105, 163.306311, 0), V(-276.443396, 174.62002, 0)),  # 0
    Part.LineSegment(V(-276.443396, 174.62002, 0), V(-287.757105, 185.933728, 0)),  # 1
    Part.LineSegment(V(-287.757105, 185.933728, 0), V(-299.070813, 174.62002, 0)),  # 2
    Part.ArcOfCircle(Part.Circle(V(-296.242386, 171.791592, 0), V(0, 0, 1), 4), math.radians(135), math.radians(225)),  # 3
    Part.LineSegment(V(-299.070813, 168.963165, 0), V(-293.413959, 163.306311, 0)),  # 4
    Part.ArcOfCircle(Part.Circle(V(-290.585532, 166.134738, 0), V(0, 0, 1), 4), math.radians(-135), math.radians(-45)),  # 5
], False)
sketch9.addConstraint([
    Sketcher.Constraint("Coincident", 0, 2, 1, 1),
    Sketcher.Constraint("Coincident", 1, 2, 2, 1),
    Sketcher.Constraint("Tangent", 2, 2, 3, 1),
    Sketcher.Constraint("Tangent", 3, 2, 4, 1),
    Sketcher.Constraint("Tangent", 4, 2, 5, 1),
    Sketcher.Constraint("Tangent", 5, 2, 0, 1),
    Sketcher.Constraint("Equal", 3, 5),
    Sketcher.Constraint("Perpendicular", 0, 1),
    Sketcher.Constraint("Perpendicular", 1, 2),
    Sketcher.Constraint("Perpendicular", 2, 4),
    Sketcher.Constraint("Horizontal", 0, 2, 2, 2),
    Sketcher.Constraint("Horizontal", 4, 2, 5, 2),
    Sketcher.Constraint("Radius", 3, Q("4 mm")),
    Sketcher.Constraint("Distance", 0, Q("16 mm")),
    Sketcher.Constraint("DistanceX", 5, 3, -1, 1, Q("290.585532 mm")),
    Sketcher.Constraint("DistanceY", -1, 1, 5, 3, Q("166.134738 mm")),
])
pad9 = body3.newObject("PartDesign::Pad", "Pad008")
pad9.Profile = sketch9
pad9.Length = 16
body4 = doc.addObject("PartDesign::Body", "Body003")

# Sketch on XY plane
sketch10 = body4.newObject("Sketcher::SketchObject", "Sketch009")
sketch10.AttachmentSupport = (doc.getObject("XY_Plane003"), [""])
sketch10.MapMode = "FlatFace"
sketch10.AttachmentOffset = App.Placement(V(0, 0, -363.18), App.Rotation())
sketch10.addGeometry([
    Part.LineSegment(V(-287.049998, 261.594154, 0), V(-261.594154, 287.049998, 0)),  # 0
    Part.LineSegment(V(-261.594154, 287.049998, 0), V(-277.150503, 302.606347, 0)),  # 1
    Part.ArcOfCircle(Part.Circle(V(-279.97893, 299.77792, 0), V(0, 0, 1), 4), math.radians(45), math.radians(135)),  # 2
    Part.LineSegment(V(-282.807357, 302.606347, 0), V(-302.606347, 282.807357, 0)),  # 3
    Part.ArcOfCircle(Part.Circle(V(-299.77792, 279.97893, 0), V(0, 0, 1), 4), math.radians(135), math.radians(225)),  # 4
    Part.LineSegment(V(-302.606347, 277.150503, 0), V(-287.049998, 261.594154, 0)),  # 5
], False)
sketch10.addConstraint([
    Sketcher.Constraint("Coincident", 0, 2, 1, 1),
    Sketcher.Constraint("Tangent", 1, 2, 2, 1),
    Sketcher.Constraint("Tangent", 2, 2, 3, 1),
    Sketcher.Constraint("Tangent", 3, 2, 4, 1),
    Sketcher.Constraint("Tangent", 4, 2, 5, 1),
    Sketcher.Constraint("Coincident", 5, 2, 0, 1),
    Sketcher.Constraint("Equal", 2, 4),
    Sketcher.Constraint("Perpendicular", 0, 1),
    Sketcher.Constraint("Perpendicular", 1, 3),
    Sketcher.Constraint("Perpendicular", 3, 5),
    Sketcher.Constraint("Horizontal", 1, 2, 2, 2),
    Sketcher.Constraint("Radius", 2, Q("4 mm")),
    Sketcher.Constraint("Distance", 0, Q("36 mm")),
    Sketcher.Constraint("Distance", 1, Q("22 mm")),
    Sketcher.Constraint("DistanceX", 2, 3, -1, 1, Q("279.97893 mm")),
    Sketcher.Constraint("DistanceY", -1, 1, 2, 3, Q("299.77792 mm")),
])
pad10 = body4.newObject("PartDesign::Pad", "Pad009")
pad10.Profile = sketch10
pad10.Length = 52

# Sketch on XY plane
sketch11 = body4.newObject("Sketcher::SketchObject", "Sketch010")
sketch11.AttachmentSupport = (doc.getObject("XY_Plane003"), [""])
sketch11.MapMode = "FlatFace"
sketch11.AttachmentOffset = App.Placement(V(0, 0, -319.18), App.Rotation())
sketch11.addGeometry([
    Part.LineSegment(V(-331.433712, 231.352575, 0), V(-288.464211, 274.322076, 0)),  # 0
    Part.LineSegment(V(-288.464211, 274.322076, 0), V(-294.121066, 279.97893, 0)),  # 1
    Part.LineSegment(V(-294.121066, 279.97893, 0), V(-342.312946, 231.78705, 0)),  # 2
    Part.ArcOfCircle(Part.Circle(V(-338.070305, 227.544409, 0), V(0, 0, 1), 6), math.radians(135), math.radians(220.426079)),  # 3
    Part.LineSegment(V(-342.637764, 223.653611, 0), V(-295.044718, 167.783513, 0)),  # 4
    Part.LineSegment(V(-295.044718, 167.783513, 0), V(-288.954772, 172.971245, 0)),  # 5
    Part.LineSegment(V(-288.954772, 172.971245, 0), V(-331.758531, 223.219135, 0)),  # 6
    Part.ArcOfCircle(Part.Circle(V(-327.191072, 227.109934, 0), V(0, 0, 1), 6), math.radians(135), math.radians(220.426079)),  # 7
], False)
sketch11.addConstraint([
    Sketcher.Constraint("Coincident", 0, 2, 1, 1),
    Sketcher.Constraint("Coincident", 1, 2, 2, 1),
    Sketcher.Constraint("Tangent", 2, 2, 3, 1),
    Sketcher.Constraint("Tangent", 3, 2, 4, 1),
    Sketcher.Constraint("Coincident", 4, 2, 5, 1),
    Sketcher.Constraint("Coincident", 5, 2, 6, 1),
    Sketcher.Constraint("Tangent", 6, 2, 7, 2),
    Sketcher.Constraint("Tangent", 7, 1, 0, 1),
    Sketcher.Constraint("Equal", 3, 7),
    Sketcher.Constraint("Perpendicular", 0, 1),
    Sketcher.Constraint("Perpendicular", 1, 2),
    Sketcher.Constraint("Perpendicular", 4, 5),
    Sketcher.Constraint("Perpendicular", 5, 6),
    Sketcher.Constraint("Equal", 1, 5),
    Sketcher.Constraint("Radius", 3, Q("6 mm")),
    Sketcher.Constraint("Angle", 0, Q("45 deg")),
    Sketcher.Constraint("Distance", 1, Q("8 mm")),
    Sketcher.Constraint("DistanceY", 3, 2, 3, 3, Q("3.890799 mm")),
    Sketcher.Constraint("DistanceX", 3, 2, 1, 2, Q("48.516699 mm")),
    Sketcher.Constraint("DistanceX", 7, 3, 5, 2, Q("38.236299 mm")),
    Sketcher.Constraint("DistanceY", -1, 1, 3, 3, Q("227.544409 mm")),
    Sketcher.Constraint("DistanceX", 7, 3, -1, 1, Q("327.191072 mm")),
])
pad11 = body4.newObject("PartDesign::Pad", "Pad010")
pad11.Profile = sketch11
pad11.Length = 8

# Sketch on XY plane
sketch12 = body4.newObject("Sketcher::SketchObject", "Sketch011")
sketch12.AttachmentSupport = (doc.getObject("XY_Plane003"), [""])
sketch12.MapMode = "FlatFace"
sketch12.AttachmentOffset = App.Placement(V(0, 0, -323.18), App.Rotation())
sketch12.addGeometry([
    Part.LineSegment(V(-287.757105, 163.306311, 0), V(-276.443396, 174.62002, 0)),  # 0
    Part.LineSegment(V(-276.443396, 174.62002, 0), V(-287.757105, 185.933728, 0)),  # 1
    Part.LineSegment(V(-287.757105, 185.933728, 0), V(-299.070813, 174.62002, 0)),  # 2
    Part.ArcOfCircle(Part.Circle(V(-296.242386, 171.791592, 0), V(0, 0, 1), 4), math.radians(135), math.radians(225)),  # 3
    Part.LineSegment(V(-299.070813, 168.963165, 0), V(-293.413959, 163.306311, 0)),  # 4
    Part.ArcOfCircle(Part.Circle(V(-290.585532, 166.134738, 0), V(0, 0, 1), 4), math.radians(-135), math.radians(-45)),  # 5
], False)
sketch12.addConstraint([
    Sketcher.Constraint("Coincident", 0, 2, 1, 1),
    Sketcher.Constraint("Coincident", 1, 2, 2, 1),
    Sketcher.Constraint("Tangent", 2, 2, 3, 1),
    Sketcher.Constraint("Tangent", 3, 2, 4, 1),
    Sketcher.Constraint("Tangent", 4, 2, 5, 1),
    Sketcher.Constraint("Tangent", 5, 2, 0, 1),
    Sketcher.Constraint("Equal", 3, 5),
    Sketcher.Constraint("Perpendicular", 0, 1),
    Sketcher.Constraint("Perpendicular", 1, 2),
    Sketcher.Constraint("Perpendicular", 2, 4),
    Sketcher.Constraint("Horizontal", 0, 2, 2, 2),
    Sketcher.Constraint("Horizontal", 4, 2, 5, 2),
    Sketcher.Constraint("Radius", 3, Q("4 mm")),
    Sketcher.Constraint("Distance", 0, Q("16 mm")),
    Sketcher.Constraint("DistanceX", 5, 3, -1, 1, Q("290.585532 mm")),
    Sketcher.Constraint("DistanceY", -1, 1, 5, 3, Q("166.134738 mm")),
])
pad12 = body4.newObject("PartDesign::Pad", "Pad011")
pad12.Profile = sketch12
pad12.Length = 16

doc.recompute()
